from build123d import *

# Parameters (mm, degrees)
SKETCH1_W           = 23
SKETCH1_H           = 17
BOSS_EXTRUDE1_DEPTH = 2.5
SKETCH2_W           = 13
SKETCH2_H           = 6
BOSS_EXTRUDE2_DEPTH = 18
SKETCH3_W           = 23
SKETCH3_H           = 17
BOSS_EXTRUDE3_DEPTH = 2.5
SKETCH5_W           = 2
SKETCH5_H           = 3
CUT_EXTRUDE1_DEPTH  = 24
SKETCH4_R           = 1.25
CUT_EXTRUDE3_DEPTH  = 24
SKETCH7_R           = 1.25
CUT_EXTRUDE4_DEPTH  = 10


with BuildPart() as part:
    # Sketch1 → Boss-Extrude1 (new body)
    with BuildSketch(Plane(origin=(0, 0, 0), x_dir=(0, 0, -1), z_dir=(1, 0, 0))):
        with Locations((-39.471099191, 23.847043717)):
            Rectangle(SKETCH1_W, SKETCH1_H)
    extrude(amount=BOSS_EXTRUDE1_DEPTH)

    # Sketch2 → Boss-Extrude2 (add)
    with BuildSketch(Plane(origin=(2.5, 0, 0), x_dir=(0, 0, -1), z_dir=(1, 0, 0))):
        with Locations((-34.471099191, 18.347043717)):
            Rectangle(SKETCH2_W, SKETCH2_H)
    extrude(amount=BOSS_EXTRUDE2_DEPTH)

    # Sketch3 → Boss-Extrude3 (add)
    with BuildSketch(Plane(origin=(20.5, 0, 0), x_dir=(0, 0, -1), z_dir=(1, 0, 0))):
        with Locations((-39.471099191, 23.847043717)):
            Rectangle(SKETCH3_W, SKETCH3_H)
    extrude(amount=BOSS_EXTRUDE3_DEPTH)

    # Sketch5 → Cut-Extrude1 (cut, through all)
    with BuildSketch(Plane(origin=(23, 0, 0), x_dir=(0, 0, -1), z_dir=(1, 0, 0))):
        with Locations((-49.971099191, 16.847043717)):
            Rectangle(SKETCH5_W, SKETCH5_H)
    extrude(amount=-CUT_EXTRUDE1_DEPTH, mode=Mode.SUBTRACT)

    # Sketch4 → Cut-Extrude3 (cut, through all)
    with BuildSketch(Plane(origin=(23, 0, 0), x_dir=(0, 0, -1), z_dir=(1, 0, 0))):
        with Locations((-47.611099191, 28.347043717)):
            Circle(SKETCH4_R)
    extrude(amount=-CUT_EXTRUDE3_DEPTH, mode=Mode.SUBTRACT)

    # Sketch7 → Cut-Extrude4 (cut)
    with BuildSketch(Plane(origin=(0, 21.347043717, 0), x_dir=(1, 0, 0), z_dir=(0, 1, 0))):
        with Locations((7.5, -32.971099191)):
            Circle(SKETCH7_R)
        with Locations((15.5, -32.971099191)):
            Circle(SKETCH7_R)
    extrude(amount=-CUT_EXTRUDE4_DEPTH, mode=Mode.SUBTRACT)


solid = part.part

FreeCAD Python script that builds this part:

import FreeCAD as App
import Part
import Sketcher

V = App.Vector

doc = App.newDocument("Part")
body = doc.addObject("PartDesign::Body", "Body")

# Sketch on YZ plane
sketch1 = body.newObject("Sketcher::SketchObject", "Sketch")
sketch1.AttachmentSupport = (doc.getObject("YZ_Plane"), [""])
sketch1.MapMode = "FlatFace"
sketch1.addGeometry(Part.LineSegment(V(32.347044, 50.971099, 0), V(15.347044, 50.971099, 0)), False)
sketch1.addGeometry(Part.LineSegment(V(15.347044, 50.971099, 0), V(15.347044, 27.971099, 0)), False)
sketch1.addGeometry(Part.LineSegment(V(15.347044, 27.971099, 0), V(32.347044, 27.971099, 0)), False)
sketch1.addGeometry(Part.LineSegment(V(32.347044, 27.971099, 0), V(32.347044, 50.971099, 0)), False)
sketch1.addConstraint(Sketcher.Constraint("Coincident", 0, 2, 1, 1))
sketch1.addConstraint(Sketcher.Constraint("Coincident", 1, 2, 2, 1))
sketch1.addConstraint(Sketcher.Constraint("Coincident", 2, 2, 3, 1))
sketch1.addConstraint(Sketcher.Constraint("Coincident", 3, 2, 0, 1))
sketch1.addConstraint(Sketcher.Constraint("Horizontal", 0))
sketch1.addConstraint(Sketcher.Constraint("Vertical", 1))
sketch1.addConstraint(Sketcher.Constraint("Horizontal", 2))
sketch1.addConstraint(Sketcher.Constraint("Vertical", 3))
sketch1.addConstraint(Sketcher.Constraint("DistanceX", 0, 2, 0, 1, 17.0))
sketch1.addConstraint(Sketcher.Constraint("DistanceY", 1, 2, 1, 1, 23.0))
sketch1.addConstraint(Sketcher.Constraint("DistanceY", -1, 1, 0, 2, 50.971099))
sketch1.addConstraint(Sketcher.Constraint("DistanceX", -1, 1, 0, 2, 15.347044))
pad1 = body.newObject("PartDesign::Pad", "Pad")
pad1.Profile = sketch1
pad1.Length = 2.5

# Sketch on YZ plane
sketch2 = body.newObject("Sketcher::SketchObject", "Sketch001")
sketch2.AttachmentSupport = (doc.getObject("YZ_Plane"), [""])
sketch2.MapMode = "FlatFace"
sketch2.AttachmentOffset = App.Placement(V(0, 0, 2.5), App.Rotation())
sketch2.addGeometry(Part.LineSegment(V(21.347044, 40.971099, 0), V(15.347044, 40.971099, 0)), False)
sketch2.addGeometry(Part.LineSegment(V(15.347044, 40.971099, 0), V(15.347044, 27.971099, 0)), False)
sketch2.addGeometry(Part.LineSegment(V(15.347044, 27.971099, 0), V(21.347044, 27.971099, 0)), False)
sketch2.addGeometry(Part.LineSegment(V(21.347044, 27.971099, 0), V(21.347044, 40.971099, 0)), False)
sketch2.addConstraint(Sketcher.Constraint("Coincident", 0, 2, 1, 1))
sketch2.addConstraint(Sketcher.Constraint("Coincident", 1, 2, 2, 1))
sketch2.addConstraint(Sketcher.Constraint("Coincident", 2, 2, 3, 1))
sketch2.addConstraint(Sketcher.Constraint("Coincident", 3, 2, 0, 1))
sketch2.addConstraint(Sketcher.Constraint("Horizontal", 0))
sketch2.addConstraint(Sketcher.Constraint("Vertical", 1))
sketch2.addConstraint(Sketcher.Constraint("Horizontal", 2))
sketch2.addConstraint(Sketcher.Constraint("Vertical", 3))
sketch2.addConstraint(Sketcher.Constraint("DistanceX", 0, 2, 0, 1, 6.0))
sketch2.addConstraint(Sketcher.Constraint("DistanceY", 1, 2, 1, 1, 13.0))
sketch2.addConstraint(Sketcher.Constraint("DistanceY", -1, 1, 0, 2, 40.971099))
sketch2.addConstraint(Sketcher.Constraint("DistanceX", -1, 1, 0, 2, 15.347044))
pad2 = body.newObject("PartDesign::Pad", "Pad001")
pad2.Profile = sketch2
pad2.Length = 18

# Sketch on YZ plane
sketch3 = body.newObject("Sketcher::SketchObject", "Sketch002")
sketch3.AttachmentSupport = (doc.getObject("YZ_Plane"), [""])
sketch3.MapMode = "FlatFace"
sketch3.AttachmentOffset = App.Placement(V(0, 0, 20.5), App.Rotation())
sketch3.addGeometry(Part.LineSegment(V(32.347044, 50.971099, 0), V(15.347044, 50.971099, 0)), False)
sketch3.addGeometry(Part.LineSegment(V(15.347044, 50.971099, 0), V(15.347044, 27.971099, 0)), False)
sketch3.addGeometry(Part.LineSegment(V(15.347044, 27.971099, 0), V(32.347044, 27.971099, 0)), False)
sketch3.addGeometry(Part.LineSegment(V(32.347044, 27.971099, 0), V(32.347044, 50.971099, 0)), False)
sketch3.addConstraint(Sketcher.Constraint("Coincident", 0, 2, 1, 1))
sketch3.addConstraint(Sketcher.Constraint("Coincident", 1, 2, 2, 1))
sketch3.addConstraint(Sketcher.Constraint("Coincident", 2, 2, 3, 1))
sketch3.addConstraint(Sketcher.Constraint("Coincident", 3, 2, 0, 1))
sketch3.addConstraint(Sketcher.Constraint("Horizontal", 0))
sketch3.addConstraint(Sketcher.Constraint("Vertical", 1))
sketch3.addConstraint(Sketcher.Constraint("Horizontal", 2))
sketch3.addConstraint(Sketcher.Constraint("Vertical", 3))
sketch3.addConstraint(Sketcher.Constraint("DistanceX", 0, 2, 0, 1, 17.0))
sketch3.addConstraint(Sketcher.Constraint("DistanceY", 1, 2, 1, 1, 23.0))
sketch3.addConstraint(Sketcher.Constraint("DistanceY", -1, 1, 0, 2, 50.971099))
sketch3.addConstraint(Sketcher.Constraint("DistanceX", -1, 1, 0, 2, 15.347044))
pad3 = body.newObject("PartDesign::Pad", "Pad002")
pad3.Profile = sketch3
pad3.Length = 2.5

# Sketch on YZ plane
sketch4 = body.newObject("Sketcher::SketchObject", "Sketch003")
sketch4.AttachmentSupport = (doc.getObject("YZ_Plane"), [""])
sketch4.MapMode = "FlatFace"
sketch4.AttachmentOffset = App.Placement(V(0, 0, 23), App.Rotation())
sketch4.addGeometry(Part.LineSegment(V(18.347044, 50.971099, 0), V(15.347044, 50.971099, 0)), False)
sketch4.addGeometry(Part.LineSegment(V(15.347044, 50.971099, 0), V(15.347044, 48.971099, 0)), False)
sketch4.addGeometry(Part.LineSegment(V(15.347044, 48.971099, 0), V(18.347044, 48.971099, 0)), False)
sketch4.addGeometry(Part.LineSegment(V(18.347044, 48.971099, 0), V(18.347044, 50.971099, 0)), False)
sketch4.addConstraint(Sketcher.Constraint("Coincident", 0, 2, 1, 1))
sketch4.addConstraint(Sketcher.Constraint("Coincident", 1, 2, 2, 1))
sketch4.addConstraint(Sketcher.Constraint("Coincident", 2, 2, 3, 1))
sketch4.addConstraint(Sketcher.Constraint("Coincident", 3, 2, 0, 1))
sketch4.addConstraint(Sketcher.Constraint("Horizontal", 0))
sketch4.addConstraint(Sketcher.Constraint("Vertical", 1))
sketch4.addConstraint(Sketcher.Constraint("Horizontal", 2))
sketch4.addConstraint(Sketcher.Constraint("Vertical", 3))
sketch4.addConstraint(Sketcher.Constraint("DistanceX", 0, 2, 0, 1, 3.0))
sketch4.addConstraint(Sketcher.Constraint("DistanceY", 1, 2, 1, 1, 2.0))
sketch4.addConstraint(Sketcher.Constraint("DistanceY", -1, 1, 0, 2, 50.971099))
sketch4.addConstraint(Sketcher.Constraint("DistanceX", -1, 1, 0, 2, 15.347044))
pocket1 = body.newObject("PartDesign::Pocket", "Pocket")
pocket1.Profile = sketch4
pocket1.Type = "ThroughAll"

# Sketch on YZ plane
sketch5 = body.newObject("Sketcher::SketchObject", "Sketch004")
sketch5.AttachmentSupport = (doc.getObject("YZ_Plane"), [""])
sketch5.MapMode = "FlatFace"
sketch5.AttachmentOffset = App.Placement(V(0, 0, 23), App.Rotation())
sketch5.addGeometry(Part.Circle(V(28.347044, 47.611099, 0), V(0, 0, 1), 1.25), False)
sketch5.addConstraint(Sketcher.Constraint("Diameter", 0, 2.5))
sketch5.addConstraint(Sketcher.Constraint("DistanceY", -1, 1, 0, 3, 47.611099))
sketch5.addConstraint(Sketcher.Constraint("DistanceX", -1, 1, 0, 3, 28.347044))
pocket2 = body.newObject("PartDesign::Pocket", "Pocket001")
pocket2.Profile = sketch5
pocket2.Type = "ThroughAll"

# Sketch on XZ plane
sketch6 = body.newObject("Sketcher::SketchObject", "Sketch005")
sketch6.AttachmentSupport = (doc.getObject("XZ_Plane"), [""])
sketch6.MapMode = "FlatFace"
sketch6.AttachmentOffset = App.Placement(V(0, 0, -21.347044), App.Rotation())
sketch6.addGeometry(Part.Circle(V(7.5, 32.971099, 0), V(0, 0, 1), 1.25), False)
sketch6.addGeometry(Part.Circle(V(15.5, 32.971099, 0), V(0, 0, 1), 1.25), False)
sketch6.addConstraint(Sketcher.Constraint("Equal", 0, 1))
sketch6.addConstraint(Sketcher.Constraint("Horizontal", 0, 3, 1, 3))
sketch6.addConstraint(Sketcher.Constraint("Diameter", 0, 2.5))
sketch6.addConstraint(Sketcher.Constraint("DistanceX", 0, 3, 1, 3, 8.0))
sketch6.addConstraint(Sketcher.Constraint("DistanceX", -1, 1, 0, 3, 7.5))
sketch6.addConstraint(Sketcher.Constraint("DistanceY", -1, 1, 0, 3, 32.971099))
pocket3 = body.newObject("PartDesign::Pocket", "Pocket002")
pocket3.Profile = sketch6
pocket3.Length = 10
pocket3.Reversed = True

doc.recompute()
